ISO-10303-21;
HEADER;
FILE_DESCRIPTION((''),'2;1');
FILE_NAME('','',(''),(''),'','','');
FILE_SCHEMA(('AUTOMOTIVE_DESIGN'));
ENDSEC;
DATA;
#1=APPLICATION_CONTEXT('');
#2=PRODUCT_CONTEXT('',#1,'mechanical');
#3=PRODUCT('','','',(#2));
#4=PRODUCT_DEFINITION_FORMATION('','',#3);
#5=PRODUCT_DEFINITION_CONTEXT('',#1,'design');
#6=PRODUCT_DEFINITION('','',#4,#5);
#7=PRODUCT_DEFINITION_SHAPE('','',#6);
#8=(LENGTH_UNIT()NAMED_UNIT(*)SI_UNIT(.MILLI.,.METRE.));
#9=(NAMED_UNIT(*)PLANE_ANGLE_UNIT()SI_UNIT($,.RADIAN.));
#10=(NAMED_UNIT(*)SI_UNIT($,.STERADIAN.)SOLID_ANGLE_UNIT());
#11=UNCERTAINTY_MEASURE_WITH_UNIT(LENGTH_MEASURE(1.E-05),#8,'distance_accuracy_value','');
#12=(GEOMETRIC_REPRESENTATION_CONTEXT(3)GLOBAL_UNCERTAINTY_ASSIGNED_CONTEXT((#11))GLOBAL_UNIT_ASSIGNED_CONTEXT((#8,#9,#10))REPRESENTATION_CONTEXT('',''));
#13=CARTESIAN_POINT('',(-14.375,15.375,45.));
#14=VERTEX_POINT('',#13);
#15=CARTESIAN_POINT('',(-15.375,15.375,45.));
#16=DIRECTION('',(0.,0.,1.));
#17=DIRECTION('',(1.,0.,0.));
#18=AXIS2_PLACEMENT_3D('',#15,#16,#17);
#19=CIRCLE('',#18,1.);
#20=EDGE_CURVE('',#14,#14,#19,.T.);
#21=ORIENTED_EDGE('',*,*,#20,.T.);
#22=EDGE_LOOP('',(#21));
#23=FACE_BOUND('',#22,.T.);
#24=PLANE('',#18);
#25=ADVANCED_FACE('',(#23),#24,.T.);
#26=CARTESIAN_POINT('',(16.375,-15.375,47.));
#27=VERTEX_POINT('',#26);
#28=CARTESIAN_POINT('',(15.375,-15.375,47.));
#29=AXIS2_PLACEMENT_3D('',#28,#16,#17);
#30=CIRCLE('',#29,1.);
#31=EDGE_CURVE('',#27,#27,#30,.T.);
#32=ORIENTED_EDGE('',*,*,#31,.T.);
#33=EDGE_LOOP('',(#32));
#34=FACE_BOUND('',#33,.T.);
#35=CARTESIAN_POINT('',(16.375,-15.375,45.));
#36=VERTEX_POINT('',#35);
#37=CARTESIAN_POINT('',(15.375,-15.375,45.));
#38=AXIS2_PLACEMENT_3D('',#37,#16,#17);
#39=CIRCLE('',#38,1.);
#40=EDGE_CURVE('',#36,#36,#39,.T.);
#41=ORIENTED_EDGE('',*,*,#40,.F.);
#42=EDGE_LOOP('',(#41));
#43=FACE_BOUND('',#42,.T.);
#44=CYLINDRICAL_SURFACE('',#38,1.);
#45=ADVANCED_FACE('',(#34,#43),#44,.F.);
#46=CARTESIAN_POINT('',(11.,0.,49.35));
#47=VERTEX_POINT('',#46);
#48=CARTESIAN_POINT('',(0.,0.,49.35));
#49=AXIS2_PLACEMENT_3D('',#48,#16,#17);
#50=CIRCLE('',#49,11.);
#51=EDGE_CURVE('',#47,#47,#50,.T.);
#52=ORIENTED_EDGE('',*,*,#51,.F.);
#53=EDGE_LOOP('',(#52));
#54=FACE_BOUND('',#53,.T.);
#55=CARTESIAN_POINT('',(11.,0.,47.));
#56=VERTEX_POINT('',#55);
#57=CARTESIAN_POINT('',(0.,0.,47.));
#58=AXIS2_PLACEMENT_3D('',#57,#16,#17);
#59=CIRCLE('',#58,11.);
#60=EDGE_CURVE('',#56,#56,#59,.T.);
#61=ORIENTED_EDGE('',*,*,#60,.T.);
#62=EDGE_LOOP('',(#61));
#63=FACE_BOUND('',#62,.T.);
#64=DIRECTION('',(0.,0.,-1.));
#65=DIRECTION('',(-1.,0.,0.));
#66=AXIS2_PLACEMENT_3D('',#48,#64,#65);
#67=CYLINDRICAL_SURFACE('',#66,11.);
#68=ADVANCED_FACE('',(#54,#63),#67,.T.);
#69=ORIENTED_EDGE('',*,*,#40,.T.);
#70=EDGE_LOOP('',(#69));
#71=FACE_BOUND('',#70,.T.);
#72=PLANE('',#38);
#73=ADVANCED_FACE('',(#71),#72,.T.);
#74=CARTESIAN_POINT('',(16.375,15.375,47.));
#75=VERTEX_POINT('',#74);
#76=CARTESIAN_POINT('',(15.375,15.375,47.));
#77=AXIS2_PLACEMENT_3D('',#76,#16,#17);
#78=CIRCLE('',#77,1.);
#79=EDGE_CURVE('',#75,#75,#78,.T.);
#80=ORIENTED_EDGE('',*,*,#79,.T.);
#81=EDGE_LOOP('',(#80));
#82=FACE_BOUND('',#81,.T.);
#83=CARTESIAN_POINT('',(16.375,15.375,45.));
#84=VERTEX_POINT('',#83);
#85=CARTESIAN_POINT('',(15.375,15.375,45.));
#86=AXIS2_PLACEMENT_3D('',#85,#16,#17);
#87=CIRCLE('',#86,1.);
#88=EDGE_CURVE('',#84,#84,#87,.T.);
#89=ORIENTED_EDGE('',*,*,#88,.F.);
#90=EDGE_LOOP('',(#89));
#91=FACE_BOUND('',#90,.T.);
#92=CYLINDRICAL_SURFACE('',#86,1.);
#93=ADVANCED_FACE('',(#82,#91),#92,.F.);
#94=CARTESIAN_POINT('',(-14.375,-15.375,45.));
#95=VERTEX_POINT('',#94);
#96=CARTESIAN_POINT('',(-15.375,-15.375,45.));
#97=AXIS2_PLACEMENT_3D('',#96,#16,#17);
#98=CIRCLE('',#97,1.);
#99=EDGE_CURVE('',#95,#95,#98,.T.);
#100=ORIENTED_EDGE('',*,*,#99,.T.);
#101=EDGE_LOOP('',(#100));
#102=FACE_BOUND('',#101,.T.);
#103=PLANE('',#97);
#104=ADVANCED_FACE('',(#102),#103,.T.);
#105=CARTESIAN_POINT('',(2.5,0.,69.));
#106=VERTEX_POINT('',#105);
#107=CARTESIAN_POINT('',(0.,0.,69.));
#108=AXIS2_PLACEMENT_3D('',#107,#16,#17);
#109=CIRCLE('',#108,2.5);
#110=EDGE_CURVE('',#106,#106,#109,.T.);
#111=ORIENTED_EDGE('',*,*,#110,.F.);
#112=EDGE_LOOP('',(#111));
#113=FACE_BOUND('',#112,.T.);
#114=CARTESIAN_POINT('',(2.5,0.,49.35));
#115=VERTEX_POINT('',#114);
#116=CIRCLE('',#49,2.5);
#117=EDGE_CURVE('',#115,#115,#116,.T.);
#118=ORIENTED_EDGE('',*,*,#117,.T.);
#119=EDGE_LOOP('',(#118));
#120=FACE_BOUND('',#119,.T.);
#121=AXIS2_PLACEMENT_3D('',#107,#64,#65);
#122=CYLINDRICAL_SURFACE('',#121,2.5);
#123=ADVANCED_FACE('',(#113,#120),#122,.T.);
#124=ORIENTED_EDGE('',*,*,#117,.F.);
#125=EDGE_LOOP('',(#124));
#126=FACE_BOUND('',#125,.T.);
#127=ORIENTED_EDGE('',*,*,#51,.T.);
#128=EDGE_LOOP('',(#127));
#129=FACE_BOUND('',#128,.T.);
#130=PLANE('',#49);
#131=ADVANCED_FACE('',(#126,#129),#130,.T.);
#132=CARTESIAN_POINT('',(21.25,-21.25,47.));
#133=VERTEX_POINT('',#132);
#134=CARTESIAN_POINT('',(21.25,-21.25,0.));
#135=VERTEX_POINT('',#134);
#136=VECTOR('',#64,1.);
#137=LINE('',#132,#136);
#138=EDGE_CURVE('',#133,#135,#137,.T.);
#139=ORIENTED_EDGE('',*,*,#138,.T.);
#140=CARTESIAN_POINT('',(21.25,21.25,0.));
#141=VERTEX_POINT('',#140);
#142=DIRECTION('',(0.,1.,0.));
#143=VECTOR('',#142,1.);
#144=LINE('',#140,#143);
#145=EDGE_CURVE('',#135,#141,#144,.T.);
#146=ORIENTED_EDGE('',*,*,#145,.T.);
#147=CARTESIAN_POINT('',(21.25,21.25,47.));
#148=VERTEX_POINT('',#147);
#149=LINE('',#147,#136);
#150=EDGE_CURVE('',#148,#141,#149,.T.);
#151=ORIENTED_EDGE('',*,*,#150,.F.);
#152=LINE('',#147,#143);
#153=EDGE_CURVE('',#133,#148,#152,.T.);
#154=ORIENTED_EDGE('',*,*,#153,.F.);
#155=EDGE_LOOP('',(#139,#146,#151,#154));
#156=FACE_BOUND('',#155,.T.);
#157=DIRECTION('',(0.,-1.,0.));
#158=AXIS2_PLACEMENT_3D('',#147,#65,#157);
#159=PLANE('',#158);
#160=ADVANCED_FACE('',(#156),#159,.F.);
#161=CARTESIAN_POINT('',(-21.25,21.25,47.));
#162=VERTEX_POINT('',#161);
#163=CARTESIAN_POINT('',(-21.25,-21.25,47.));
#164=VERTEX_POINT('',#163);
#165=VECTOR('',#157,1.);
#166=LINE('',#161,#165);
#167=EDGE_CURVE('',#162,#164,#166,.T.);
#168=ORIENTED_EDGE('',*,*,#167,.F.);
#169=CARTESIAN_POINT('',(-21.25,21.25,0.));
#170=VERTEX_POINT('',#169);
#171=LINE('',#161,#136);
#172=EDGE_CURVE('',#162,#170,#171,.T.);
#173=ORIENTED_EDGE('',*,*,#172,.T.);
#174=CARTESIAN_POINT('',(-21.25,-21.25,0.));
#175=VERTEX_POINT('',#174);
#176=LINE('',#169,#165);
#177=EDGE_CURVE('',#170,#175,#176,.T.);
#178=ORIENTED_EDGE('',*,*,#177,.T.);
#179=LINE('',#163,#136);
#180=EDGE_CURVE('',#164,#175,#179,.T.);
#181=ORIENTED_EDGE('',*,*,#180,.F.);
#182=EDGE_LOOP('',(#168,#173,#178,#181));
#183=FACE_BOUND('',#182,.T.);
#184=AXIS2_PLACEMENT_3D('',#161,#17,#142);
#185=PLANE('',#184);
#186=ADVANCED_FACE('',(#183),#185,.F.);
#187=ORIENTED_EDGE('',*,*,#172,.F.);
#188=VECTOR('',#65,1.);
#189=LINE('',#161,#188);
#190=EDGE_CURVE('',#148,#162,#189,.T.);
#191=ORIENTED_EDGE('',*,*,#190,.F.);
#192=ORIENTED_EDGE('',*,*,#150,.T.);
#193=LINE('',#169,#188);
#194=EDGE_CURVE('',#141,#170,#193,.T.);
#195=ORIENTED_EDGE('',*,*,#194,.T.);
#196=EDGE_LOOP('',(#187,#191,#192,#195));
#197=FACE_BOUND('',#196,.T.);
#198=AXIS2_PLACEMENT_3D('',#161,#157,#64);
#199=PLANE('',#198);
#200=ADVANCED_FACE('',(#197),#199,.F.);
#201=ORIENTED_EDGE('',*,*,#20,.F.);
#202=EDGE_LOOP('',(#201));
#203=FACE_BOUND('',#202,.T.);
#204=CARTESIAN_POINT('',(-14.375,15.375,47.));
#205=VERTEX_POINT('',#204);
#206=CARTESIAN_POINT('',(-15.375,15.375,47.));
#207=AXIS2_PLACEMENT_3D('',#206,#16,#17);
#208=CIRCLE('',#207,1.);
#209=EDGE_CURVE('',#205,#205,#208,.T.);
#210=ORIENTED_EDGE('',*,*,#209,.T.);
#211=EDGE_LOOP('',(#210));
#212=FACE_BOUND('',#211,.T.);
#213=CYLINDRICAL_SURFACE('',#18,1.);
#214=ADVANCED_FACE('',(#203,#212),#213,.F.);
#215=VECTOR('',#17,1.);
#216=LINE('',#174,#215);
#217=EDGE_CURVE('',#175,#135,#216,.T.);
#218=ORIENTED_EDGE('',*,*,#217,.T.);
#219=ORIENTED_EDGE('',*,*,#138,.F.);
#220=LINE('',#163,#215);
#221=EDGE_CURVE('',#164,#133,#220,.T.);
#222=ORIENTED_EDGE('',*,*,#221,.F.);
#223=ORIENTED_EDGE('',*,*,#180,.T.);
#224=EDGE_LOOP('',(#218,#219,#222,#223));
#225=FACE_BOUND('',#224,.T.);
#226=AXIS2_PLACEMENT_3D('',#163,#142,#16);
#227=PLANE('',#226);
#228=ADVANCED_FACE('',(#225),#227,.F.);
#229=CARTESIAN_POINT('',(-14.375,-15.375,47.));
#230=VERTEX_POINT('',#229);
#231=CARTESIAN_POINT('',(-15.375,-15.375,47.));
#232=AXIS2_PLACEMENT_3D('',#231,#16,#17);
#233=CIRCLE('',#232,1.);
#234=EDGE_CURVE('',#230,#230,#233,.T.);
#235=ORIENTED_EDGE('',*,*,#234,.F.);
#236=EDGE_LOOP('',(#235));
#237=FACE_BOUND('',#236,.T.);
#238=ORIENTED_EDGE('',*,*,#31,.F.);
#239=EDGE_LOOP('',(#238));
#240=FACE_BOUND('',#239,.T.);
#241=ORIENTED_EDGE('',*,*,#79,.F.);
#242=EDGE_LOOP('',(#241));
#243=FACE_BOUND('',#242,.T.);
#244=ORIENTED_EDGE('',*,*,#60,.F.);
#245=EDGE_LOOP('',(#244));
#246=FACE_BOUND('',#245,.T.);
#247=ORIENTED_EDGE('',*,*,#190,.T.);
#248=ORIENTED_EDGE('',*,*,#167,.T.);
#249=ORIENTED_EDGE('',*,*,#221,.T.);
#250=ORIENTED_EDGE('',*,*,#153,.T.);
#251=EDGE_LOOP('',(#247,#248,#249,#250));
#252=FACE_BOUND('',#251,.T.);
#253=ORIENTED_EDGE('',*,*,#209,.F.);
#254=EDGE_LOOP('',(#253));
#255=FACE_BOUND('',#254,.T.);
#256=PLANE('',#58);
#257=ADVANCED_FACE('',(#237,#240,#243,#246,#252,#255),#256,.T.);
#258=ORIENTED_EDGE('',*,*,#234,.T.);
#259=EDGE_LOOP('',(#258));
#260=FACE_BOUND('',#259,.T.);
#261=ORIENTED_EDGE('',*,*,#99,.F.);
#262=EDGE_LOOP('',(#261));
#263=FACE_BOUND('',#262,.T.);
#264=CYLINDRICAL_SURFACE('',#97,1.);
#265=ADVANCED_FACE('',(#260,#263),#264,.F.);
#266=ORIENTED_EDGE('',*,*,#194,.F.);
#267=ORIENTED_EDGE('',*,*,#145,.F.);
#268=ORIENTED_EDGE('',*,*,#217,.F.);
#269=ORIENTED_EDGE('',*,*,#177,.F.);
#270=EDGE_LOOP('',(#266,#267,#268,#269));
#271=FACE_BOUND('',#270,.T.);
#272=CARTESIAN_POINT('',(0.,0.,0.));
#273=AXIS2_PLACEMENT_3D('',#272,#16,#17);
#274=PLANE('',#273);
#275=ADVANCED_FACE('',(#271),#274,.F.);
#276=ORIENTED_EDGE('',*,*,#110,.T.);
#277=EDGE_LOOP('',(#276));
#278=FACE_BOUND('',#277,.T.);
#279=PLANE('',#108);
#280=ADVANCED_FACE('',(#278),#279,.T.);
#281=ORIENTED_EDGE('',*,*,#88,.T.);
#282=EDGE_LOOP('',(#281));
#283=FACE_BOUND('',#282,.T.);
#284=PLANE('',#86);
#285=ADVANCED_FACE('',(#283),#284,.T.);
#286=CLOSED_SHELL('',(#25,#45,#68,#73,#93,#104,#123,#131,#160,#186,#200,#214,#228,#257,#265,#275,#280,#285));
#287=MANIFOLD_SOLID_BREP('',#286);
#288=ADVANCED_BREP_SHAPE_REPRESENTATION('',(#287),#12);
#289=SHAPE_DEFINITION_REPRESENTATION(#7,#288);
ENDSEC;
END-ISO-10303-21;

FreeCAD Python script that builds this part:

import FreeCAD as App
import Part
import Sketcher
Q = App.Units.Quantity


def add_polygon(sketch, points):
    """Adds a closed chain of lines whose ends are joined by coincident constraints."""
    first, n = sketch.GeometryCount, len(points)
    for a, b in zip(points, points[1:] + points[:1]):
        sketch.addGeometry(Part.LineSegment(App.Vector(*a, 0), App.Vector(*b, 0)), False)
    for i in range(n):
        sketch.addConstraint(Sketcher.Constraint("Coincident", first + i, 2, first + (i + 1) % n, 1))

doc = App.newDocument("Part")
params = doc.addObject("Spreadsheet::Sheet", "Params")
for row, (alias, value) in enumerate([
    ("sketch1_width", "42.5 mm"),
    ("pad1_length", "47 mm"),
    ("sketch2_diameter", "2 mm"),
    ("pocket1_length", "2 mm"),
    ("sketch3_diameter", "5 mm"),
    ("pad2_length", "22 mm"),
    ("sketch4_diameter", "22 mm"),
    ("pad3_length", "2.35 mm"),
], start=1):
    params.set(f"A{row}", alias)
    params.set(f"B{row}", "=" + value)
    params.setAlias(f"B{row}", alias)

body = doc.addObject("PartDesign::Body", "Body")

sketch1 = body.newObject("Sketcher::SketchObject", "Sketch")
sketch1.AttachmentSupport = (doc.getObject("XY_Plane"), [""])
sketch1.MapMode = "FlatFace"
add_polygon(sketch1, [(-21.25, 21.25), (-21.25, -21.25), (21.25, -21.25), (21.25, 21.25)])
sketch1.addConstraint(Sketcher.Constraint("Vertical", 0))
sketch1.addConstraint(Sketcher.Constraint("Horizontal", 1))
sketch1.addConstraint(Sketcher.Constraint("Vertical", 2))
sketch1.addConstraint(Sketcher.Constraint("Horizontal", 3))
sketch1.addConstraint(Sketcher.Constraint("Symmetric", 0, 2, 2, 2, -1, 1))
sketch1.addConstraint(Sketcher.Constraint("Equal", 3, 0))
sketch1.addConstraint(Sketcher.Constraint("DistanceX", 1, 1, 1, 2, Q("42.5 mm")))
sketch1.setExpression("Constraints[10]", "Params.sketch1_width")
pad1 = body.newObject("PartDesign::Pad", "Pad")
pad1.Profile = sketch1
pad1.setExpression("Length", "Params.pad1_length")

sketch2 = body.newObject("Sketcher::SketchObject", "Sketch001")
sketch2.AttachmentSupport = (doc.getObject("XY_Plane"), [""])
sketch2.MapMode = "FlatFace"
sketch2.AttachmentOffset = App.Placement(App.Vector(0, 0, 47), App.Rotation())
sketch2.addGeometry(Part.Circle(App.Vector(-15.375, 15.375, 0), App.Vector(0, 0, 1), 1), False)
sketch2.addGeometry(Part.Circle(App.Vector(15.375, 15.375, 0), App.Vector(0, 0, 1), 1), False)
sketch2.addGeometry(Part.Circle(App.Vector(15.375, -15.375, 0), App.Vector(0, 0, 1), 1), False)
sketch2.addGeometry(Part.Circle(App.Vector(-15.375, -15.375, 0), App.Vector(0, 0, 1), 1), False)
sketch2.addConstraint(Sketcher.Constraint("Equal", 0, 1))
sketch2.addConstraint(Sketcher.Constraint("Equal", 1, 2))
sketch2.addConstraint(Sketcher.Constraint("Equal", 2, 3))
sketch2.addConstraint(Sketcher.Constraint("Symmetric", 0, 3, 2, 3, -1, 1))
sketch2.addConstraint(Sketcher.Constraint("Symmetric", 1, 3, 3, 3, -1, 1))
sketch2.addConstraint(Sketcher.Constraint("Symmetric", 0, 3, 1, 3, -2))
sketch2.addConstraint(Sketcher.Constraint("Diameter", 0, Q("2 mm")))
sketch2.addConstraint(Sketcher.Constraint("DistanceX", 0, 3, 1, 3, Q("30.75 mm")))
sketch2.addConstraint(Sketcher.Constraint("DistanceY", 2, 3, 1, 3, Q("30.75 mm")))
sketch2.setExpression("Constraints[6]", "Params.sketch2_diameter")
pocket1 = body.newObject("PartDesign::Pocket", "Pocket")
pocket1.Profile = sketch2
pocket1.setExpression("Length", "Params.pocket1_length")

sketch3 = body.newObject("Sketcher::SketchObject", "Sketch002")
sketch3.AttachmentSupport = (doc.getObject("XY_Plane"), [""])
sketch3.MapMode = "FlatFace"
sketch3.AttachmentOffset = App.Placement(App.Vector(0, 0, 47), App.Rotation())
sketch3.addGeometry(Part.Circle(App.Vector(0, 0, 0), App.Vector(0, 0, 1), 2.5), False)
sketch3.addConstraint(Sketcher.Constraint("Coincident", 0, 3, -1, 1))
sketch3.addConstraint(Sketcher.Constraint("Diameter", 0, Q("5 mm")))
sketch3.setExpression("Constraints[1]", "Params.sketch3_diameter")
pad2 = body.newObject("PartDesign::Pad", "Pad001")
pad2.Profile = sketch3
pad2.setExpression("Length", "Params.pad2_length")

sketch4 = body.newObject("Sketcher::SketchObject", "Sketch003")
sketch4.AttachmentSupport = (doc.getObject("XY_Plane"), [""])
sketch4.MapMode = "FlatFace"
sketch4.AttachmentOffset = App.Placement(App.Vector(0, 0, 47), App.Rotation())
sketch4.addGeometry(Part.Circle(App.Vector(0, 0, 0), App.Vector(0, 0, 1), 11), False)
sketch4.addConstraint(Sketcher.Constraint("Coincident", 0, 3, -1, 1))
sketch4.addConstraint(Sketcher.Constraint("Diameter", 0, Q("22 mm")))
sketch4.setExpression("Constraints[1]", "Params.sketch4_diameter")
pad3 = body.newObject("PartDesign::Pad", "Pad002")
pad3.Profile = sketch4
pad3.setExpression("Length", "Params.pad3_length")

doc.recompute()
